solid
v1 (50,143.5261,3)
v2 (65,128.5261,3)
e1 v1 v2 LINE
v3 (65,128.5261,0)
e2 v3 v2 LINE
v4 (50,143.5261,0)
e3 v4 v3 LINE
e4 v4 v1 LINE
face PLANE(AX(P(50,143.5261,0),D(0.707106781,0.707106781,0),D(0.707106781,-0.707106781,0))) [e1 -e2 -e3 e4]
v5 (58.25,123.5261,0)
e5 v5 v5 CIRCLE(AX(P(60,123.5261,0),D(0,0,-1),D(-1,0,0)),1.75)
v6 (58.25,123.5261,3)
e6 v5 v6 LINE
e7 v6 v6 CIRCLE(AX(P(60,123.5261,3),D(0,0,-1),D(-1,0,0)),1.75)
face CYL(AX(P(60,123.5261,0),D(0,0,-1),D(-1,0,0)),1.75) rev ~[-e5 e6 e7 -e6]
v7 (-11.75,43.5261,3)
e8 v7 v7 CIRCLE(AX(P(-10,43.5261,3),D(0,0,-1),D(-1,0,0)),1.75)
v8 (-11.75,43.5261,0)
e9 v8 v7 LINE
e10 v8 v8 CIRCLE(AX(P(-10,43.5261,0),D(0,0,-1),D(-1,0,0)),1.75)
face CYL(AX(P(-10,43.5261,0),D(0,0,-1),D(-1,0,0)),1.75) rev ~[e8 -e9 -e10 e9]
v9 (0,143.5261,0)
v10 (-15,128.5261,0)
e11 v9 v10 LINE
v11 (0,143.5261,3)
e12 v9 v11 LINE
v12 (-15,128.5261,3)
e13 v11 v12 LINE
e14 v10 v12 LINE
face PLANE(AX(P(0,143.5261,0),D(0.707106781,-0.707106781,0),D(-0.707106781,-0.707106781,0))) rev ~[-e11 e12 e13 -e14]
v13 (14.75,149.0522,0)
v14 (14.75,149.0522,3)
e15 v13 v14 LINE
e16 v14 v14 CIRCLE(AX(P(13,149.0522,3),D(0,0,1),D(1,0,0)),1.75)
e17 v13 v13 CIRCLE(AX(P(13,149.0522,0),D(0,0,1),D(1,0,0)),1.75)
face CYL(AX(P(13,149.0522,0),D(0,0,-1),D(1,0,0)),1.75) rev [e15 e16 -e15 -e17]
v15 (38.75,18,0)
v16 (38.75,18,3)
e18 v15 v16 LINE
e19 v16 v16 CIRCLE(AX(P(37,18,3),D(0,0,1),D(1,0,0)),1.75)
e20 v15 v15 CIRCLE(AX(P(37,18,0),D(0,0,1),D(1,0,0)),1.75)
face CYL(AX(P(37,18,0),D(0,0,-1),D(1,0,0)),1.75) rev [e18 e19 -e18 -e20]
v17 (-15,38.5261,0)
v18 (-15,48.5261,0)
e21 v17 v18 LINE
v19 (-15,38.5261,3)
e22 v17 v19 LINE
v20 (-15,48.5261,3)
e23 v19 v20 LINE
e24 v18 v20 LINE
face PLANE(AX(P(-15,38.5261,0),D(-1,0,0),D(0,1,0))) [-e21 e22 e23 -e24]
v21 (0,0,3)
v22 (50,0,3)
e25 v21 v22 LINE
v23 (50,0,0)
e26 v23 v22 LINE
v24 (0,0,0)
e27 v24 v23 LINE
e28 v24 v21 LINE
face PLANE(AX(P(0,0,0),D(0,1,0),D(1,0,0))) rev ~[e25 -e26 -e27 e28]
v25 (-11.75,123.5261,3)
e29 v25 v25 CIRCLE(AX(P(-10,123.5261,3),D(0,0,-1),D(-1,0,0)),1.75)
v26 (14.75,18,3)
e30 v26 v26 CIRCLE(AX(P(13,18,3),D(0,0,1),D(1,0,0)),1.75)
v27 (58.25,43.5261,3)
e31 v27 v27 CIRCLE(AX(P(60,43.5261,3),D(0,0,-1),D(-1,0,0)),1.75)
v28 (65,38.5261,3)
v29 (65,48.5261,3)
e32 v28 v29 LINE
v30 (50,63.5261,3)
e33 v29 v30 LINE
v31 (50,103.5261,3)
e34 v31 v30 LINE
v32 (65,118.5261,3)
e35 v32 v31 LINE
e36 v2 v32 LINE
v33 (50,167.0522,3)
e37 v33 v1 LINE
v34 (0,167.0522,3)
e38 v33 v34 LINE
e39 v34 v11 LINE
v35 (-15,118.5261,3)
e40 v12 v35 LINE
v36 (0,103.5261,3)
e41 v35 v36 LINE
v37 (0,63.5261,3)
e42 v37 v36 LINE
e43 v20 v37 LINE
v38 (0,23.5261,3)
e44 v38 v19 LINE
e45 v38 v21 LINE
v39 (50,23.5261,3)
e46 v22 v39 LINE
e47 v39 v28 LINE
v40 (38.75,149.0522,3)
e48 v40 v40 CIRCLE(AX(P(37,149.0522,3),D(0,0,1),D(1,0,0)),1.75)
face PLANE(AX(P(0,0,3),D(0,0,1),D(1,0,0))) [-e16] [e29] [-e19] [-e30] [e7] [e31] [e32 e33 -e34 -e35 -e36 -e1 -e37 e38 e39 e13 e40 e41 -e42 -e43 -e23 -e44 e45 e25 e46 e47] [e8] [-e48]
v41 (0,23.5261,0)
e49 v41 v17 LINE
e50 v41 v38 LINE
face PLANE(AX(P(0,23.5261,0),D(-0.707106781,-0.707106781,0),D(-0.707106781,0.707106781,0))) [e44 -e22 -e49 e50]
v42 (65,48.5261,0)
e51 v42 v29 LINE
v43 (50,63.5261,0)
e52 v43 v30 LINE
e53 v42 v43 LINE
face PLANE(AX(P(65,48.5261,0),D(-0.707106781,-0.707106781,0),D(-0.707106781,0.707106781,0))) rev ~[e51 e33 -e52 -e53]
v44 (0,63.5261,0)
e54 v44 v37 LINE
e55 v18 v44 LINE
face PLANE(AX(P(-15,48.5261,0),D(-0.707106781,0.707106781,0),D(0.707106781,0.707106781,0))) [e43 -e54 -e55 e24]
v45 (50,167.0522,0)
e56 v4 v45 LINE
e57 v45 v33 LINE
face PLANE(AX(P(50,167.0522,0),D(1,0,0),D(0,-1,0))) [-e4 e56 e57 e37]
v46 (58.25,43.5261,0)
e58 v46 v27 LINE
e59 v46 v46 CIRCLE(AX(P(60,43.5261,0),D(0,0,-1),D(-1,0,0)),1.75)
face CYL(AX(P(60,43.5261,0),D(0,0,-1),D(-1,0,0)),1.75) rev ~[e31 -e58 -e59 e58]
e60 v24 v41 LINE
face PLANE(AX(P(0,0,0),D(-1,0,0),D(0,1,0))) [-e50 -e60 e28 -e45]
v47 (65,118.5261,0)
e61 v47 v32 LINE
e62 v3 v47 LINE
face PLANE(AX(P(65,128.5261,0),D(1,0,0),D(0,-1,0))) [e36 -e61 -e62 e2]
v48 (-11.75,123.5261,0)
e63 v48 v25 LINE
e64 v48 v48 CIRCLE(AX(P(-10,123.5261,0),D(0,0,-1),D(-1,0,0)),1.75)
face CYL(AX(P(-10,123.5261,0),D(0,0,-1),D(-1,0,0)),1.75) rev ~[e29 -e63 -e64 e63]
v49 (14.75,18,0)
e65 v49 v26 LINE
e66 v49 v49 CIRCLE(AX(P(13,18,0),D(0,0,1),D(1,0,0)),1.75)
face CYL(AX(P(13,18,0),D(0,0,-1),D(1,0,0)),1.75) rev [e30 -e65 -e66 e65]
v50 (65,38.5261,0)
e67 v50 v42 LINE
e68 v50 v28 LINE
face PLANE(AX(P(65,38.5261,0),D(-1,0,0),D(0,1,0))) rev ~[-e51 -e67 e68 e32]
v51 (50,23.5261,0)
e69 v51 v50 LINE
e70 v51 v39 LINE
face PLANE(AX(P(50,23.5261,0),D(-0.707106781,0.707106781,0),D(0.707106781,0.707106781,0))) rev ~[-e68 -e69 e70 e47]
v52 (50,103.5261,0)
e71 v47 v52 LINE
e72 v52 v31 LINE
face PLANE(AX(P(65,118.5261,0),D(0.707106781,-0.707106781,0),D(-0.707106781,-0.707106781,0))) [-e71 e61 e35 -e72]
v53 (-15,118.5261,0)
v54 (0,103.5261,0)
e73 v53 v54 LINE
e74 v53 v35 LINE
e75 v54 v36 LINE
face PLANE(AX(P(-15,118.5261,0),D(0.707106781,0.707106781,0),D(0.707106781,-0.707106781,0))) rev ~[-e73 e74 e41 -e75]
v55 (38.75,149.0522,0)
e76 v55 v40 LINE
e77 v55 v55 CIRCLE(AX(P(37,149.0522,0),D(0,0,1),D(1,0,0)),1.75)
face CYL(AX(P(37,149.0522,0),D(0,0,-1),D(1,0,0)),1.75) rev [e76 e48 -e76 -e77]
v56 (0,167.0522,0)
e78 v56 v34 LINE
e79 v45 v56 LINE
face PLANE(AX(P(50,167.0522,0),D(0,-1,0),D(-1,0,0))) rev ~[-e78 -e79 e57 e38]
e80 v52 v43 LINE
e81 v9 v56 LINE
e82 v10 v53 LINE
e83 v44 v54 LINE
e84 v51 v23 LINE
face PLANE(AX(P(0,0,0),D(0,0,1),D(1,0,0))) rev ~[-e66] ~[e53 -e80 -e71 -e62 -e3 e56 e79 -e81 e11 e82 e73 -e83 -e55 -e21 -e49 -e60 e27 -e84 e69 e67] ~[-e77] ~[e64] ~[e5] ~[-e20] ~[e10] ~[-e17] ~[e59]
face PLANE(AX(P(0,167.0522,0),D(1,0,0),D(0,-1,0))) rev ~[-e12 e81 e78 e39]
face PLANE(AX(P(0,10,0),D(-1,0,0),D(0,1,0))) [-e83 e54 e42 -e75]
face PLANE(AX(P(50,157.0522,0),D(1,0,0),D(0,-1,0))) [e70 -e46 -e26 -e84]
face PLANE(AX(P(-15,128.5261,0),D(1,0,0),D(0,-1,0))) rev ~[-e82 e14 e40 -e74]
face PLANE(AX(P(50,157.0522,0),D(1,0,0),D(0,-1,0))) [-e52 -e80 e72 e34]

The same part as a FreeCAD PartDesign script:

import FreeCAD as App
import Part
import Sketcher

V = App.Vector
Q = App.Units.Quantity

doc = App.newDocument("Part")
body = doc.addObject("PartDesign::Body", "Body")

# Sketch on XY plane
sketch1 = doc.addObject("Sketcher::SketchObject", "Sketch")
body.addObject(sketch1)
sketch1.AttachmentSupport = (doc.XY_Plane, [""])
sketch1.MapMode = "FlatFace"
sketch1.addGeometry(Part.LineSegment(V(50, 0, 0), V(50, 167.1, 0)), False)
sketch1.addGeometry(Part.LineSegment(V(50, 167.1, 0), V(0, 167.1, 0)), False)
sketch1.addGeometry(Part.LineSegment(V(0, 167.1, 0), V(0, 0, 0)), False)
sketch1.addGeometry(Part.LineSegment(V(0, 0, 0), V(50, 0, 0)), False)
sketch1.addGeometry(Part.Circle(V(13, 18, 0), V(0, 0, 1), 1.8), False)
sketch1.addGeometry(Part.Circle(V(37, 18, 0), V(0, 0, 1), 1.8), False)
sketch1.addGeometry(Part.Circle(V(13, 149.1, 0), V(0, 0, 1), 1.8), False)
sketch1.addGeometry(Part.Circle(V(37, 149.1, 0), V(0, 0, 1), 1.8), False)
sketch1.addConstraint(Sketcher.Constraint("Coincident", 0, 2, 1, 1))
sketch1.addConstraint(Sketcher.Constraint("Coincident", 1, 2, 2, 1))
sketch1.addConstraint(Sketcher.Constraint("Coincident", 2, 2, 3, 1))
sketch1.addConstraint(Sketcher.Constraint("Coincident", 3, 2, 0, 1))
sketch1.addConstraint(Sketcher.Constraint("Vertical", 0))
sketch1.addConstraint(Sketcher.Constraint("Horizontal", 1))
sketch1.addConstraint(Sketcher.Constraint("Vertical", 2))
sketch1.addConstraint(Sketcher.Constraint("Horizontal", 3))
sketch1.addConstraint(Sketcher.Constraint("Coincident", 2, 2, -1, 1))
sketch1.addConstraint(Sketcher.Constraint("Equal", 4, 5))
sketch1.addConstraint(Sketcher.Constraint("Equal", 5, 6))
sketch1.addConstraint(Sketcher.Constraint("Equal", 6, 7))
sketch1.addConstraint(Sketcher.Constraint("Horizontal", 4, 3, 5, 3))
sketch1.addConstraint(Sketcher.Constraint("Horizontal", 6, 3, 7, 3))
sketch1.addConstraint(Sketcher.Constraint("Vertical", 4, 3, 6, 3))
sketch1.addConstraint(Sketcher.Constraint("Vertical", 5, 3, 7, 3))
sketch1.addConstraint(Sketcher.Constraint("Diameter", 4, Q("3.5 mm")))
sketch1.addConstraint(Sketcher.Constraint("DistanceX", 1, 2, 1, 1, Q("50 mm")))
sketch1.addConstraint(Sketcher.Constraint("DistanceX", -1, 1, 4, 3, Q("13 mm")))
sketch1.addConstraint(Sketcher.Constraint("DistanceY", -1, 1, 4, 3, Q("18 mm")))
sketch1.addConstraint(Sketcher.Constraint("DistanceX", -1, 1, 5, 3, Q("37 mm")))
sketch1.addConstraint(Sketcher.Constraint("DistanceY", 7, 3, 0, 2, Q("18 mm")))
sketch1.addConstraint(Sketcher.Constraint("DistanceY", 0, 1, 0, 2, Q("167.0522 mm")))
pad1 = doc.addObject("PartDesign::Pad", "Pad")
body.addObject(pad1)
pad1.Profile = sketch1
pad1.Length = 3

# Sketch on XY plane
sketch2 = doc.addObject("Sketcher::SketchObject", "Sketch001")
body.addObject(sketch2)
sketch2.AttachmentSupport = (doc.XY_Plane, [""])
sketch2.MapMode = "FlatFace"
sketch2.addGeometry(Part.LineSegment(V(-15, 48.5, 0), V(0, 63.5, 0)), False)
sketch2.addGeometry(Part.LineSegment(V(0, 63.5, 0), V(0, 23.5, 0)), False)
sketch2.addGeometry(Part.LineSegment(V(0, 23.5, 0), V(-15, 38.5, 0)), False)
sketch2.addGeometry(Part.LineSegment(V(-15, 38.5, 0), V(-15, 48.5, 0)), False)
sketch2.addGeometry(Part.Circle(V(-10, 43.5, 0), V(0, 0, 1), 1.8), False)
sketch2.addGeometry(Part.LineSegment(V(-15, 128.5, 0), V(0, 143.5, 0)), False)
sketch2.addGeometry(Part.LineSegment(V(0, 143.5, 0), V(0, 103.5, 0)), False)
sketch2.addGeometry(Part.LineSegment(V(0, 103.5, 0), V(-15, 118.5, 0)), False)
sketch2.addGeometry(Part.LineSegment(V(-15, 118.5, 0), V(-15, 128.5, 0)), False)
sketch2.addGeometry(Part.Circle(V(-10, 123.5, 0), V(0, 0, 1), 1.8), False)
sketch2.addGeometry(Part.LineSegment(V(50, 23.5, 0), V(50, 63.5, 0)), False)
sketch2.addGeometry(Part.LineSegment(V(50, 63.5, 0), V(65, 48.5, 0)), False)
sketch2.addGeometry(Part.LineSegment(V(65, 48.5, 0), V(65, 38.5, 0)), False)
sketch2.addGeometry(Part.LineSegment(V(65, 38.5, 0), V(50, 23.5, 0)), False)
sketch2.addGeometry(Part.Circle(V(60, 43.5, 0), V(0, 0, 1), 1.8), False)
sketch2.addGeometry(Part.LineSegment(V(50, 103.5, 0), V(50, 143.5, 0)), False)
sketch2.addGeometry(Part.LineSegment(V(50, 143.5, 0), V(65, 128.5, 0)), False)
sketch2.addGeometry(Part.LineSegment(V(65, 128.5, 0), V(65, 118.5, 0)), False)
sketch2.addGeometry(Part.LineSegment(V(65, 118.5, 0), V(50, 103.5, 0)), False)
sketch2.addGeometry(Part.Circle(V(60, 123.5, 0), V(0, 0, 1), 1.8), False)
sketch2.addConstraint(Sketcher.Constraint("Coincident", 0, 2, 1, 1))
sketch2.addConstraint(Sketcher.Constraint("Coincident", 1, 2, 2, 1))
sketch2.addConstraint(Sketcher.Constraint("Coincident", 2, 2, 3, 1))
sketch2.addConstraint(Sketcher.Constraint("Coincident", 3, 2, 0, 1))
sketch2.addConstraint(Sketcher.Constraint("Coincident", 5, 2, 6, 1))
sketch2.addConstraint(Sketcher.Constraint("Coincident", 6, 2, 7, 1))
sketch2.addConstraint(Sketcher.Constraint("Coincident", 7, 2, 8, 1))
sketch2.addConstraint(Sketcher.Constraint("Coincident", 8, 2, 5, 1))
sketch2.addConstraint(Sketcher.Constraint("Coincident", 10, 2, 11, 1))
sketch2.addConstraint(Sketcher.Constraint("Coincident", 11, 2, 12, 1))
sketch2.addConstraint(Sketcher.Constraint("Coincident", 12, 2, 13, 1))
sketch2.addConstraint(Sketcher.Constraint("Coincident", 13, 2, 10, 1))
sketch2.addConstraint(Sketcher.Constraint("Coincident", 15, 2, 16, 1))
sketch2.addConstraint(Sketcher.Constraint("Coincident", 16, 2, 17, 1))
sketch2.addConstraint(Sketcher.Constraint("Coincident", 17, 2, 18, 1))
sketch2.addConstraint(Sketcher.Constraint("Coincident", 18, 2, 15, 1))
sketch2.addConstraint(Sketcher.Constraint("Vertical", 1))
sketch2.addConstraint(Sketcher.Constraint("Vertical", 3))
sketch2.addConstraint(Sketcher.Constraint("Vertical", 6))
sketch2.addConstraint(Sketcher.Constraint("Vertical", 8))
sketch2.addConstraint(Sketcher.Constraint("Vertical", 10))
sketch2.addConstraint(Sketcher.Constraint("Vertical", 12))
sketch2.addConstraint(Sketcher.Constraint("Vertical", 15))
sketch2.addConstraint(Sketcher.Constraint("Vertical", 17))
sketch2.addConstraint(Sketcher.Constraint("Equal", 4, 9))
sketch2.addConstraint(Sketcher.Constraint("Equal", 9, 14))
sketch2.addConstraint(Sketcher.Constraint("Equal", 14, 19))
sketch2.addConstraint(Sketcher.Constraint("PointOnObject", 0, 2, -2))
sketch2.addConstraint(Sketcher.Constraint("PointOnObject", 5, 2, -2))
sketch2.addConstraint(Sketcher.Constraint("Perpendicular", 0, 2))
sketch2.addConstraint(Sketcher.Constraint("Perpendicular", 2, 5))
sketch2.addConstraint(Sketcher.Constraint("Perpendicular", 5, 7))
sketch2.addConstraint(Sketcher.Constraint("Parallel", 7, 11))
sketch2.addConstraint(Sketcher.Constraint("Perpendicular", 11, 13))
sketch2.addConstraint(Sketcher.Constraint("Perpendicular", 13, 16))
sketch2.addConstraint(Sketcher.Constraint("Perpendicular", 16, 18))
sketch2.addConstraint(Sketcher.Constraint("Horizontal", 4, 3, 14, 3))
sketch2.addConstraint(Sketcher.Constraint("Horizontal", 9, 3, 19, 3))
sketch2.addConstraint(Sketcher.Constraint("Horizontal", 0, 2, 10, 2))
sketch2.addConstraint(Sketcher.Constraint("Horizontal", 3, 2, 11, 2))
sketch2.addConstraint(Sketcher.Constraint("Horizontal", 2, 2, 12, 2))
sketch2.addConstraint(Sketcher.Constraint("Horizontal", 1, 2, 13, 2))
sketch2.addConstraint(Sketcher.Constraint("Horizontal", 5, 2, 15, 2))
sketch2.addConstraint(Sketcher.Constraint("Horizontal", 8, 2, 16, 2))
sketch2.addConstraint(Sketcher.Constraint("Horizontal", 7, 2, 17, 2))
sketch2.addConstraint(Sketcher.Constraint("Vertical", 4, 3, 9, 3))
sketch2.addConstraint(Sketcher.Constraint("Vertical", 14, 3, 19, 3))
sketch2.addConstraint(Sketcher.Constraint("Vertical", 3, 2, 7, 2))
sketch2.addConstraint(Sketcher.Constraint("Vertical", 13, 2, 15, 2))
sketch2.addConstraint(Sketcher.Constraint("Equal", 1, 6))
sketch2.addConstraint(Sketcher.Constraint("Diameter", 4, Q("3.5 mm")))
sketch2.addConstraint(Sketcher.Constraint("DistanceY", 3, 1, 3, 2, Q("10 mm")))
sketch2.addConstraint(Sketcher.Constraint("DistanceX", 4, 3, -1, 1, Q("10 mm")))
sketch2.addConstraint(Sketcher.Constraint("DistanceX", 2, 2, -1, 1, Q("15 mm")))
sketch2.addConstraint(Sketcher.Constraint("DistanceY", 4, 3, 0, 2, Q("20 mm")))
sketch2.addConstraint(Sketcher.Constraint("DistanceY", 9, 3, 5, 2, Q("20 mm")))
sketch2.addConstraint(Sketcher.Constraint("DistanceX", 10, 2, 14, 3, Q("10 mm")))
sketch2.addConstraint(Sketcher.Constraint("DistanceX", -1, 1, 14, 3, Q("60 mm")))
sketch2.addConstraint(Sketcher.Constraint("DistanceY", 4, 3, 9, 3, Q("80 mm")))
sketch2.addConstraint(Sketcher.Constraint("DistanceY", -1, 1, 4, 3, Q("43.526 mm")))
pad2 = doc.addObject("PartDesign::Pad", "Pad001")
body.addObject(pad2)
pad2.Profile = sketch2
pad2.Length = 3

doc.recompute()
